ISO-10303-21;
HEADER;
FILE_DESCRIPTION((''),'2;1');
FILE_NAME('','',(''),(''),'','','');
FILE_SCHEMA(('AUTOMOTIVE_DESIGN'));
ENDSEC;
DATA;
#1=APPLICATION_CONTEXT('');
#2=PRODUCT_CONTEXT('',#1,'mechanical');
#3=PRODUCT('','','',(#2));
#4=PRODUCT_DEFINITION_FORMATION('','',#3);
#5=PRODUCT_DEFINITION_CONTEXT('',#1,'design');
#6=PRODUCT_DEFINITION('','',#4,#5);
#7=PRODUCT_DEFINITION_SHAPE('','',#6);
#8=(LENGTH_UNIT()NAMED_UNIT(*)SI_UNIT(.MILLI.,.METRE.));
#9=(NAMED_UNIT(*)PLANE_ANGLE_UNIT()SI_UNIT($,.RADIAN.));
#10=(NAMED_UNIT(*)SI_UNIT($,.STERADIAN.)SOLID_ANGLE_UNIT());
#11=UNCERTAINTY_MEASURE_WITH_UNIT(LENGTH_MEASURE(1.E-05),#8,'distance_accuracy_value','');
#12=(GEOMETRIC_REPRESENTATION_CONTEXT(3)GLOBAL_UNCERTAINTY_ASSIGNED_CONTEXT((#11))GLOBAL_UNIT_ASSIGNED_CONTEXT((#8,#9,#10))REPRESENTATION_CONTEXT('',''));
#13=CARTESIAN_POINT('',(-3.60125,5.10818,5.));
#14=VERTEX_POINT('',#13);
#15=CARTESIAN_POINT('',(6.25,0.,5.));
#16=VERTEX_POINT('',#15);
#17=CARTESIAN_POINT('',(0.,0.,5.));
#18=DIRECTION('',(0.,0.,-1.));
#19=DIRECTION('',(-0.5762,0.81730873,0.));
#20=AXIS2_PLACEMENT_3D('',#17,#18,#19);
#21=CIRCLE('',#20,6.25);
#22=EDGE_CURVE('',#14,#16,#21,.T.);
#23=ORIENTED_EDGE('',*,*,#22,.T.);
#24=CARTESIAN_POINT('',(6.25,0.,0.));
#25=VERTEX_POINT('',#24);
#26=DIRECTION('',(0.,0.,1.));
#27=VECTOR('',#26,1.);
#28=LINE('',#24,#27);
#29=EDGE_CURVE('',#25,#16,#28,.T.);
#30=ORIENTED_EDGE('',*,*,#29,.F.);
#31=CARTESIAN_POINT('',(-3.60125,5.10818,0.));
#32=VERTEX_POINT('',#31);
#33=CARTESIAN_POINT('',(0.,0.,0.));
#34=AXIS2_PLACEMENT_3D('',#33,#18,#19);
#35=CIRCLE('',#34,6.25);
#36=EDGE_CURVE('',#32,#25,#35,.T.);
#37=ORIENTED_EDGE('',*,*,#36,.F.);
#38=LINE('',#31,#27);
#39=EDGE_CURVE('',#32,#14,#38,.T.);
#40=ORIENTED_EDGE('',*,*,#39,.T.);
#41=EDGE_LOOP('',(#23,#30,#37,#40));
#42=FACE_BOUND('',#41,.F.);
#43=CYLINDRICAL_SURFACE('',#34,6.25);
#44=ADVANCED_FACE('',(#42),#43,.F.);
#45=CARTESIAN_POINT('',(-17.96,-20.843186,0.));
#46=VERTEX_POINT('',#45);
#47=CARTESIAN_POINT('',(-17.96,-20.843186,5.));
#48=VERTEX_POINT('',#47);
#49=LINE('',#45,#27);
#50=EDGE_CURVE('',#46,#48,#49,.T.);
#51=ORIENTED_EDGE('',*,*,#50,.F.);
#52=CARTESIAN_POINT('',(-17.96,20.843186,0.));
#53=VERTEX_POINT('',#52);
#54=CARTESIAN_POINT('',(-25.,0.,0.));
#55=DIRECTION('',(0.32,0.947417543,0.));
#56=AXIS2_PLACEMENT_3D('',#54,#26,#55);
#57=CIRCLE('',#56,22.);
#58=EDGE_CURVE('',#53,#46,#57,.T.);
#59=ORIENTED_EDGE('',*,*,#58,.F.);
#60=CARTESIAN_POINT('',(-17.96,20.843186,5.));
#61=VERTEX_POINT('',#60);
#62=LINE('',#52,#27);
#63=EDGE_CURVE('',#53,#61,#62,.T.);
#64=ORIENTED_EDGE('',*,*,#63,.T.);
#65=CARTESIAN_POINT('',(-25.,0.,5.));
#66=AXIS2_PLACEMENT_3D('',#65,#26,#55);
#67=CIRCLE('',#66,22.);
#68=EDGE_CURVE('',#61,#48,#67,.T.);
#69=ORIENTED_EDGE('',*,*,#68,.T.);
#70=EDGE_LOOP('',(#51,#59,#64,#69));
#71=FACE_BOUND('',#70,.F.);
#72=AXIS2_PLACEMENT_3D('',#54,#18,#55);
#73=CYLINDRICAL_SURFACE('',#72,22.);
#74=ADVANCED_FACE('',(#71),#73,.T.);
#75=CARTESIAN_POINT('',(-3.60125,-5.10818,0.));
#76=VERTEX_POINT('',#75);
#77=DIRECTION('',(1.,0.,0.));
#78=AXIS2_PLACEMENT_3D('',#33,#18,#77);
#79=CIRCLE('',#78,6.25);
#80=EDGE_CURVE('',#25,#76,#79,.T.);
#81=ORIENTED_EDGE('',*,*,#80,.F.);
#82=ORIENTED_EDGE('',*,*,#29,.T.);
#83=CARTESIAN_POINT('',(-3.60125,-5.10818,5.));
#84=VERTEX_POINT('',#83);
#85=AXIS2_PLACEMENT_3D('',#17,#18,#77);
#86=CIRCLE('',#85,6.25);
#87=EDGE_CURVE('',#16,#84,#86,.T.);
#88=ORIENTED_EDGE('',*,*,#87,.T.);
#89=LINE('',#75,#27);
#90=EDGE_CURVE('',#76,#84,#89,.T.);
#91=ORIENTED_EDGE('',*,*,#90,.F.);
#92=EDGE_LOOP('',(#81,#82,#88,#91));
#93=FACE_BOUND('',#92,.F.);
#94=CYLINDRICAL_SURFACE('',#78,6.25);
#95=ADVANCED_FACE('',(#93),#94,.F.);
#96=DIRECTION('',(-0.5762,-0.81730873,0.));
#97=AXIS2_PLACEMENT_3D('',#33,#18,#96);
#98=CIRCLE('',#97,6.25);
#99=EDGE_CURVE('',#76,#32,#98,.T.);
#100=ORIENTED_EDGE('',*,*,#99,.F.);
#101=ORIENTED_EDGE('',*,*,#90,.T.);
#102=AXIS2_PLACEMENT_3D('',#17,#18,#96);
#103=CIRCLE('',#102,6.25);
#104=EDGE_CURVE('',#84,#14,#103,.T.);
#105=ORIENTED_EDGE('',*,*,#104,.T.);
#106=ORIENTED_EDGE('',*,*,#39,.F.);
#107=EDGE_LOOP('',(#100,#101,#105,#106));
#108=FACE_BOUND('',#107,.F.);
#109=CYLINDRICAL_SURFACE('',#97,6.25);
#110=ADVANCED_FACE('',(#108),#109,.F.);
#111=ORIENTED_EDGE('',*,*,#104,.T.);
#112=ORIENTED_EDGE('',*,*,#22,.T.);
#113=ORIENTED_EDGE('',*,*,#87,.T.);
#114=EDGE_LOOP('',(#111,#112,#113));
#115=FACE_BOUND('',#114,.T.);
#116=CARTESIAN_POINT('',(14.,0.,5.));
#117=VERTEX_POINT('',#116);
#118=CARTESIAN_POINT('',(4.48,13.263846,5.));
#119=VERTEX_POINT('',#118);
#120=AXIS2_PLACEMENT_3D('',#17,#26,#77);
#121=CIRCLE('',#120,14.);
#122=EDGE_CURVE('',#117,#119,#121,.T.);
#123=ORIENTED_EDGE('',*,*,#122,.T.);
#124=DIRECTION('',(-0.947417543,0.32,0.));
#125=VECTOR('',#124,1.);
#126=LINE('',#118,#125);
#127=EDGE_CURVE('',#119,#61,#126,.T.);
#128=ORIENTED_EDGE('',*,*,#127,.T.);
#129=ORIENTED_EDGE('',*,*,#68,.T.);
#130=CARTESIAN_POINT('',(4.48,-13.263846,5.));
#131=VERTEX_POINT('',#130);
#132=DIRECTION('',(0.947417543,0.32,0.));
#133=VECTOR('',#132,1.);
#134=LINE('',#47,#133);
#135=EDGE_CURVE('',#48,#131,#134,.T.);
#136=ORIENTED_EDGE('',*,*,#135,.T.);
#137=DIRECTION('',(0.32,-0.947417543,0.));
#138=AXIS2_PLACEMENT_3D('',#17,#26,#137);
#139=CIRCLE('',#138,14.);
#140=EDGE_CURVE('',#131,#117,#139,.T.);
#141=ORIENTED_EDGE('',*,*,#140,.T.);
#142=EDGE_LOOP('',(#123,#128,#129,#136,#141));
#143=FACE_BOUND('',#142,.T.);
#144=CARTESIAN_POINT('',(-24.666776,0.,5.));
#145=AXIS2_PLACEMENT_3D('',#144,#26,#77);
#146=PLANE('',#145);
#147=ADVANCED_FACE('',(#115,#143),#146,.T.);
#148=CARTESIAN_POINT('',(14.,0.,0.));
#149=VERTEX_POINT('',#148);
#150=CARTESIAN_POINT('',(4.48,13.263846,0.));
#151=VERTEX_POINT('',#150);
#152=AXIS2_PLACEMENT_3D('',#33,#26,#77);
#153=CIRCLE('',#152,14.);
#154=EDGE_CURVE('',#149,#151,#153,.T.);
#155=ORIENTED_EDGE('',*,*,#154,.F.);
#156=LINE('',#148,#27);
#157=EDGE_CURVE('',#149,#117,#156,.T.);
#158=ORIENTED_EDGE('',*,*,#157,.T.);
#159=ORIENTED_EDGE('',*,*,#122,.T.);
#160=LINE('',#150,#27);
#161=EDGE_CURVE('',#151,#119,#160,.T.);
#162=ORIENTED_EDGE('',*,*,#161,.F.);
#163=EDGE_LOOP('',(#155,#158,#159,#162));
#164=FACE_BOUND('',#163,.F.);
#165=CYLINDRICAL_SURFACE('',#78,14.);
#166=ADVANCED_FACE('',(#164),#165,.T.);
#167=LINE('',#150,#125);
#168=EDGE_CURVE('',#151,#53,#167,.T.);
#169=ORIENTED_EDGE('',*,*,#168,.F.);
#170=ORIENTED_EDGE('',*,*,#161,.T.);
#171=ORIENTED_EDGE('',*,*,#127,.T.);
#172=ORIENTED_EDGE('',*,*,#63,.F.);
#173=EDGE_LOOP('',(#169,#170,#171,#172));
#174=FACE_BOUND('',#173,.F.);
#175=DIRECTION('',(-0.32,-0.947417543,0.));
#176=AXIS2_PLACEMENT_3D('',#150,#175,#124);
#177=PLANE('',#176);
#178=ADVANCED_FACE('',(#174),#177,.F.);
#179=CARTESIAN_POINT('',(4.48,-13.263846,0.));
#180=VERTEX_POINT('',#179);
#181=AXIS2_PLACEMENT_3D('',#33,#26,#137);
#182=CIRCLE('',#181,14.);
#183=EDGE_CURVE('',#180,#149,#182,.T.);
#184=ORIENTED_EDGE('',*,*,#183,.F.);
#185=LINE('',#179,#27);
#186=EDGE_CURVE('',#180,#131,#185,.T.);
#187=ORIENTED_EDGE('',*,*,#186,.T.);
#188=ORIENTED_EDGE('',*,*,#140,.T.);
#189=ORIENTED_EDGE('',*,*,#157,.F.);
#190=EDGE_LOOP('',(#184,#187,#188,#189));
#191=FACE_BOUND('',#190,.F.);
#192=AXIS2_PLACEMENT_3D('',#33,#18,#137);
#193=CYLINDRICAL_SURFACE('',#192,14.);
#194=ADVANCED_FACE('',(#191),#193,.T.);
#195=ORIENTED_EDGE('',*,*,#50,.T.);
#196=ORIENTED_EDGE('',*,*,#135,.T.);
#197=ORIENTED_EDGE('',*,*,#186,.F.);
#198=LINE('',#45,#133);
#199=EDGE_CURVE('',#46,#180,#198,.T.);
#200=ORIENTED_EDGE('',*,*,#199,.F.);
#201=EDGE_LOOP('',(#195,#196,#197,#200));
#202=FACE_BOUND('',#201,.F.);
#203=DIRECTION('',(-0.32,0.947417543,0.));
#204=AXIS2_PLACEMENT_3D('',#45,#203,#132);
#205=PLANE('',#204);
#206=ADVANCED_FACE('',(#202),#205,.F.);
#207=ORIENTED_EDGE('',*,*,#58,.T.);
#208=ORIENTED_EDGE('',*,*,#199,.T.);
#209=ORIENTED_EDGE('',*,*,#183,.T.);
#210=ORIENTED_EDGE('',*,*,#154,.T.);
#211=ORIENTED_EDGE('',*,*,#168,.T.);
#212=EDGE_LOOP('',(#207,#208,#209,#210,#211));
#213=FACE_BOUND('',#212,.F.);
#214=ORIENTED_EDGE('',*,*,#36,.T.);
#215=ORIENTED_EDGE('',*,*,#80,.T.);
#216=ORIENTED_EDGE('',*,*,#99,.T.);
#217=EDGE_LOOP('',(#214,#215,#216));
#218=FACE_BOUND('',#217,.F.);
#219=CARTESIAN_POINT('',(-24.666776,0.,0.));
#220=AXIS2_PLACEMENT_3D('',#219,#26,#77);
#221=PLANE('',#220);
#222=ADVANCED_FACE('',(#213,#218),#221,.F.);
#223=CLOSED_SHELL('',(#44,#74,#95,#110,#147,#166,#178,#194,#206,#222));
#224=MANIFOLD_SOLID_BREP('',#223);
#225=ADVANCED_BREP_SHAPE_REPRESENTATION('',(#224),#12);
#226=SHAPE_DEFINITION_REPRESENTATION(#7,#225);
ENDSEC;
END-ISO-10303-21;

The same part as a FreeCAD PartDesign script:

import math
import FreeCAD as App
import Part
import Sketcher
from FreeCAD import Vector
Q = App.Units.Quantity

doc = App.newDocument("Part")
params = doc.addObject("Spreadsheet::Sheet", "Params")
for row, (alias, value) in enumerate([
    ("sketch1_radius", "22 mm"),
    ("sketch1_radius2", "14 mm"),
    ("sketch1_radius3", "6.25 mm"),
    ("pad1_length", "5 mm"),
], start=1):
    params.set(f"A{row}", alias)
    params.set(f"B{row}", "=" + value)
    params.setAlias(f"B{row}", alias)

body = doc.addObject("PartDesign::Body", "Body")

# Sketch on XY plane
sketch1 = body.newObject("Sketcher::SketchObject", "Sketch")
sketch1.AttachmentSupport = (doc.getObject("XY_Plane"), [""])
sketch1.MapMode = "FlatFace"
sketch1.addGeometry(Part.LineSegment(Vector(4.48, 13.263846, 0), Vector(-17.96, 20.843186, 0)), False)
sketch1.addGeometry(Part.ArcOfCircle(Part.Circle(Vector(-25, 0, 0), Vector(0, 0, 1), 22), math.radians(71.337075), math.radians(288.662925)), False)
sketch1.addGeometry(Part.LineSegment(Vector(-17.96, -20.843186, 0), Vector(4.48, -13.263846, 0)), False)
sketch1.addGeometry(Part.ArcOfCircle(Part.Circle(Vector(0, 0, 0), Vector(0, 0, 1), 14), math.radians(-71.337075), math.radians(0)), False)
sketch1.addGeometry(Part.ArcOfCircle(Part.Circle(Vector(0, 0, 0), Vector(0, 0, 1), 14), math.radians(0), math.radians(71.337075)), False)
sketch1.addGeometry(Part.ArcOfCircle(Part.Circle(Vector(0, 0, 0), Vector(0, 0, 1), 6.25), math.radians(125.183712), math.radians(234.816288)), False)
sketch1.addGeometry(Part.ArcOfCircle(Part.Circle(Vector(0, 0, 0), Vector(0, 0, 1), 6.25), math.radians(0), math.radians(125.183712)), False)
sketch1.addGeometry(Part.ArcOfCircle(Part.Circle(Vector(0, 0, 0), Vector(0, 0, 1), 6.25), math.radians(-125.183712), math.radians(0)), False)
sketch1.addConstraint(Sketcher.Constraint("Tangent", 0, 2, 1, 1))
sketch1.addConstraint(Sketcher.Constraint("Tangent", 1, 2, 2, 1))
sketch1.addConstraint(Sketcher.Constraint("Tangent", 2, 2, 3, 1))
sketch1.addConstraint(Sketcher.Constraint("Tangent", 3, 2, 4, 1))
sketch1.addConstraint(Sketcher.Constraint("Tangent", 4, 2, 0, 1))
sketch1.addConstraint(Sketcher.Constraint("Tangent", 5, 1, 6, 2))
sketch1.addConstraint(Sketcher.Constraint("Tangent", 6, 1, 7, 2))
sketch1.addConstraint(Sketcher.Constraint("Tangent", 7, 1, 5, 2))
sketch1.addConstraint(Sketcher.Constraint("Coincident", 3, 3, -1, 1))
sketch1.addConstraint(Sketcher.Constraint("Coincident", 5, 3, -1, 1))
sketch1.addConstraint(Sketcher.Constraint("Equal", 3, 4))
sketch1.addConstraint(Sketcher.Constraint("PointOnObject", 1, 3, -1))
sketch1.addConstraint(Sketcher.Constraint("PointOnObject", 3, 2, -1))
sketch1.addConstraint(Sketcher.Constraint("PointOnObject", 6, 1, -1))
sketch1.addConstraint(Sketcher.Constraint("Vertical", 5, 1, 7, 1))
sketch1.addConstraint(Sketcher.Constraint("Radius", 1, Q("22 mm")))
sketch1.addConstraint(Sketcher.Constraint("Radius", 3, Q("14 mm")))
sketch1.addConstraint(Sketcher.Constraint("Radius", 5, Q("6.25 mm")))
sketch1.addConstraint(Sketcher.Constraint("DistanceX", 1, 3, -1, 1, Q("25 mm")))
sketch1.addConstraint(Sketcher.Constraint("DistanceX", 5, 1, -1, 1, Q("3.60125 mm")))
sketch1.setExpression("Constraints[15]", "Params.sketch1_radius")
sketch1.setExpression("Constraints[16]", "Params.sketch1_radius2")
sketch1.setExpression("Constraints[17]", "Params.sketch1_radius3")
pad1 = body.newObject("PartDesign::Pad", "Pad")
pad1.Profile = sketch1
pad1.setExpression("Length", "Params.pad1_length")

doc.recompute()
